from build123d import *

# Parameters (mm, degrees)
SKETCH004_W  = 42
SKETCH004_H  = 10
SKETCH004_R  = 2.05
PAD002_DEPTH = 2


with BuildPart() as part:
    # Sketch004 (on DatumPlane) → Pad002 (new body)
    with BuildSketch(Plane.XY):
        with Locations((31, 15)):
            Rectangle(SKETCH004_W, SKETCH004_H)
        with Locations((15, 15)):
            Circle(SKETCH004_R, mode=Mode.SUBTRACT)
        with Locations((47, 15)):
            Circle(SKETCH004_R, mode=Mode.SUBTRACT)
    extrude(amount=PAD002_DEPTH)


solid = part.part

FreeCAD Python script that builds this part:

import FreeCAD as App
import Part
import Sketcher
from FreeCAD import Vector
Q = App.Units.Quantity


def add_polygon(sketch, points):
    """Adds a closed chain of lines whose ends are joined by coincident constraints."""
    first, n = sketch.GeometryCount, len(points)
    for a, b in zip(points, points[1:] + points[:1]):
        sketch.addGeometry(Part.LineSegment(App.Vector(*a, 0), App.Vector(*b, 0)), False)
    for i in range(n):
        sketch.addConstraint(Sketcher.Constraint("Coincident", first + i, 2, first + (i + 1) % n, 1))

doc = App.newDocument("Part")
body = doc.addObject("PartDesign::Body", "Body")

sketch1 = body.newObject("Sketcher::SketchObject", "Sketch")
sketch1.AttachmentSupport = (doc.getObject("XY_Plane"), [""])
sketch1.MapMode = "FlatFace"
add_polygon(sketch1, [(10, 20), (10, 10), (52, 10), (52, 20)])
sketch1.addGeometry(Part.Circle(Vector(15, 15, 0), Vector(0, 0, 1), 2), False)
sketch1.addGeometry(Part.Circle(Vector(47, 15, 0), Vector(0, 0, 1), 2), False)
sketch1.addConstraint([
    Sketcher.Constraint("Vertical", 0),
    Sketcher.Constraint("Horizontal", 1),
    Sketcher.Constraint("Vertical", 2),
    Sketcher.Constraint("Horizontal", 3),
    Sketcher.Constraint("Equal", 4, 5),
    Sketcher.Constraint("Horizontal", 4, 3, 5, 3),
    Sketcher.Constraint("Diameter", 4, Q("4.1 mm")),
    Sketcher.Constraint("DistanceX", 1, 1, 1, 2, Q("42 mm")),
    Sketcher.Constraint("DistanceY", 0, 2, 0, 1, Q("10 mm")),
    Sketcher.Constraint("DistanceX", -1, 1, 4, 3, Q("15 mm")),
    Sketcher.Constraint("DistanceY", -1, 1, 4, 3, Q("15 mm")),
    Sketcher.Constraint("DistanceX", -1, 1, 5, 3, Q("47 mm")),
    Sketcher.Constraint("DistanceX", -1, 1, 0, 2, Q("10 mm")),
    Sketcher.Constraint("DistanceY", -1, 1, 0, 2, Q("10 mm")),
])
pad1 = body.newObject("PartDesign::Pad", "Pad")
pad1.Profile = sketch1
pad1.Length = 2

doc.recompute()
